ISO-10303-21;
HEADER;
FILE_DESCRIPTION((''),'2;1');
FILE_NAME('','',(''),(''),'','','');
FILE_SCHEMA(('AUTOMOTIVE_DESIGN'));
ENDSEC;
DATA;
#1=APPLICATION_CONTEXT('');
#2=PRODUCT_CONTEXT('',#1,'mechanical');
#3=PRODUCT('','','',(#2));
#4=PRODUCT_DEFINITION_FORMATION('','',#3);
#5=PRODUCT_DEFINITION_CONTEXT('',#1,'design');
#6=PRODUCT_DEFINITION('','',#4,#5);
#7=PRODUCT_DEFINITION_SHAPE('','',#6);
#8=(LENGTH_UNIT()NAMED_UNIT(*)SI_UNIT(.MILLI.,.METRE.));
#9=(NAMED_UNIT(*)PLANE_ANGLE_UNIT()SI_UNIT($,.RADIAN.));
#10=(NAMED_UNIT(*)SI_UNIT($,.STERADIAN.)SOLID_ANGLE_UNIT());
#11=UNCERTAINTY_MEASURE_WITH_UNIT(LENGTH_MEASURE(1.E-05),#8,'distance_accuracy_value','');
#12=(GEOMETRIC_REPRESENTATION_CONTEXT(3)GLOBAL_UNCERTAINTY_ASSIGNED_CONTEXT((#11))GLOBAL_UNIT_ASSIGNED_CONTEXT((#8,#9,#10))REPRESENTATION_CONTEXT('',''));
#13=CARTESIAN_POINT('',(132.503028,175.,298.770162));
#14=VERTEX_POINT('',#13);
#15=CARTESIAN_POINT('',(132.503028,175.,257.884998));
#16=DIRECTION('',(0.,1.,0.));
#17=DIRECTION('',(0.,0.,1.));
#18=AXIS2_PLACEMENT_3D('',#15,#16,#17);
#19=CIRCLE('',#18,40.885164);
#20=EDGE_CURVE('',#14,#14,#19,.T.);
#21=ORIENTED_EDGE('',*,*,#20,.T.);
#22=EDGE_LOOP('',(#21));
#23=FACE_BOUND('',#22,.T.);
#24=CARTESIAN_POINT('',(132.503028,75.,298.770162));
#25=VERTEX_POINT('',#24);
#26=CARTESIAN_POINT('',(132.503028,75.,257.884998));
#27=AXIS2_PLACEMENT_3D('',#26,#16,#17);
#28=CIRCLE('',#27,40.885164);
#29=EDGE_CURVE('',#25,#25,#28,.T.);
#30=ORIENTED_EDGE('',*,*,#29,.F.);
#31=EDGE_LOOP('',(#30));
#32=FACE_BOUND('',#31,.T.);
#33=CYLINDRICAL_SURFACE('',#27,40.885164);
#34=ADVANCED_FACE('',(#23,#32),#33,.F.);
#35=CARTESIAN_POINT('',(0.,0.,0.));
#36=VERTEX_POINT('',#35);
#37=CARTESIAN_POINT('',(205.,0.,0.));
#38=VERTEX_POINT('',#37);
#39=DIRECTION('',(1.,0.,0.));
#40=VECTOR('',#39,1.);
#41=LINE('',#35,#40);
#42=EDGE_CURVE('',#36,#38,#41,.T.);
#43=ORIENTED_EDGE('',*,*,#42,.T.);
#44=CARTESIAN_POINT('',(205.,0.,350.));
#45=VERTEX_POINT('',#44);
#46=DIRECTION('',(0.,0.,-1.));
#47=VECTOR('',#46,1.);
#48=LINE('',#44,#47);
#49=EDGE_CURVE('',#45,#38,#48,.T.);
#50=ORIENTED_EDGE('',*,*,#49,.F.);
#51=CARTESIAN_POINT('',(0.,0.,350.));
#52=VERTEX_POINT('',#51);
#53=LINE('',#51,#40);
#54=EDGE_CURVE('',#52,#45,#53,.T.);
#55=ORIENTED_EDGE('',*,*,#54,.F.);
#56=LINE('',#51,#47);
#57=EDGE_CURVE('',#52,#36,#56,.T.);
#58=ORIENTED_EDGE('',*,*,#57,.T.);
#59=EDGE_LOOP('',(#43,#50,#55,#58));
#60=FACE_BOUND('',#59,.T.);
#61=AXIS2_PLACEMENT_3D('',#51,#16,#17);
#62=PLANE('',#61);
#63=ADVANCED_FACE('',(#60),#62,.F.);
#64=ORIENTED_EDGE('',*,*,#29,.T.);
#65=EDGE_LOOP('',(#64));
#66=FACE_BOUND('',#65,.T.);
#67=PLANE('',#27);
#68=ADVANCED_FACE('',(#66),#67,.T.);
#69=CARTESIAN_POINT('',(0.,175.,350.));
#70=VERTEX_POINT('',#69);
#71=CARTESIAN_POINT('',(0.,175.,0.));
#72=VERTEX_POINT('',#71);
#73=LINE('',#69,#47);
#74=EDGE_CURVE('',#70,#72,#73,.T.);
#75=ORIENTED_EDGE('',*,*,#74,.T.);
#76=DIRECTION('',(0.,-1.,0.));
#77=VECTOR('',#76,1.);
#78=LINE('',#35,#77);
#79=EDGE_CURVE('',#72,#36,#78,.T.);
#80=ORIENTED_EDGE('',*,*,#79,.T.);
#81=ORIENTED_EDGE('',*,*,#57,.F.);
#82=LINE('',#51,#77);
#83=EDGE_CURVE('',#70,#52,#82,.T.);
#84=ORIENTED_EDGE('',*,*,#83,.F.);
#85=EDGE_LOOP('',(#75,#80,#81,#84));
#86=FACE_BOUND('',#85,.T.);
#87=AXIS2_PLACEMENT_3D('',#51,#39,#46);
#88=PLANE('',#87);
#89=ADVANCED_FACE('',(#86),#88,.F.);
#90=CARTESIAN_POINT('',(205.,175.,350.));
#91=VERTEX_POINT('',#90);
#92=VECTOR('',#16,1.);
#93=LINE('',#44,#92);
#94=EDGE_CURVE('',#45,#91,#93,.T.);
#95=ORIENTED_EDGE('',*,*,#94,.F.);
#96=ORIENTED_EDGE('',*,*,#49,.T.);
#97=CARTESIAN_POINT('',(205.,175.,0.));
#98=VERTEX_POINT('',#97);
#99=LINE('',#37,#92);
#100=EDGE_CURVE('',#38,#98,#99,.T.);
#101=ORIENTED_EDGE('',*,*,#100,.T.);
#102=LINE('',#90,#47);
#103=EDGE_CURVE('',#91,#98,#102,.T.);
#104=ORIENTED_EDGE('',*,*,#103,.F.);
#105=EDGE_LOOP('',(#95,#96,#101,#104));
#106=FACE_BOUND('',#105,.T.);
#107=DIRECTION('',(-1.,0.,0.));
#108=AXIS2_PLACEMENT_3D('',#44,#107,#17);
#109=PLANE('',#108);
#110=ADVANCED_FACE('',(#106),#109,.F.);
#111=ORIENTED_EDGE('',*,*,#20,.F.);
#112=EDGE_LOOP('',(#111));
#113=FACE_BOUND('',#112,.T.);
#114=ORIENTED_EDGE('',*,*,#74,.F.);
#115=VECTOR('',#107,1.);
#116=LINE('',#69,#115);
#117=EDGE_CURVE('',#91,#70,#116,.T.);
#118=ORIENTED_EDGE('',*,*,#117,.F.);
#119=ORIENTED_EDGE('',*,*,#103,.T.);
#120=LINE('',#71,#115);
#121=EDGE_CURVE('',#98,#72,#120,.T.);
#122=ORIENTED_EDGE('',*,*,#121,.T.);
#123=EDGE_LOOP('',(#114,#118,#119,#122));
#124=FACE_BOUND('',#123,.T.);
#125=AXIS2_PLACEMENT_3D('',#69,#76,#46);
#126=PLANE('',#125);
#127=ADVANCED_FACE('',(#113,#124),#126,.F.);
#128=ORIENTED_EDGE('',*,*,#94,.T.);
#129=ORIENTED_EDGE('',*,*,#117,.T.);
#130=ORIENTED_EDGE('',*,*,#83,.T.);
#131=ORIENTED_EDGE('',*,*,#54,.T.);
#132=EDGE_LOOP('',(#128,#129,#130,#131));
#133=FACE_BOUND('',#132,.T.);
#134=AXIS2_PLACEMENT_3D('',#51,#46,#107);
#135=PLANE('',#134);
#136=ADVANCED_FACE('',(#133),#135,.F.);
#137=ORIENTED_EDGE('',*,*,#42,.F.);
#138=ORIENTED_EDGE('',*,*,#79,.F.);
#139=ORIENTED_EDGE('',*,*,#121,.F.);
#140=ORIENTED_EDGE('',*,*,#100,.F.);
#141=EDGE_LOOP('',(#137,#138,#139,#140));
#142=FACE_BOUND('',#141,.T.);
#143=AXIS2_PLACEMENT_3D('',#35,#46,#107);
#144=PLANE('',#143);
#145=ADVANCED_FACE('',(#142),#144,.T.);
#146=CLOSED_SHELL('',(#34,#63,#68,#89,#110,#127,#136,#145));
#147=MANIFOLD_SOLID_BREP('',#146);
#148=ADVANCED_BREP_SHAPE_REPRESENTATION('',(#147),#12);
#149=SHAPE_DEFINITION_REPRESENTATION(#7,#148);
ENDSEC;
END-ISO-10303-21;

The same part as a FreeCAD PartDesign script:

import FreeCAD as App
import Part
import Sketcher
from FreeCAD import Vector

doc = App.newDocument("Part")
body = doc.addObject("PartDesign::Body", "Body")

# Sketch on XY plane
sketch1 = doc.addObject("Sketcher::SketchObject", "Sketch")
body.addObject(sketch1)
sketch1.AttachmentSupport = (doc.XY_Plane, [""])
sketch1.MapMode = "FlatFace"
sketch1.addGeometry(Part.LineSegment(Vector(0, 175, 0), Vector(0, 0, 0)), False)
sketch1.addGeometry(Part.LineSegment(Vector(0, 0, 0), Vector(205, 0, 0)), False)
sketch1.addGeometry(Part.LineSegment(Vector(205, 0, 0), Vector(205, 175, 0)), False)
sketch1.addGeometry(Part.LineSegment(Vector(205, 175, 0), Vector(0, 175, 0)), False)
sketch1.addConstraint(Sketcher.Constraint("Coincident", 0, 2, 1, 1))
sketch1.addConstraint(Sketcher.Constraint("Coincident", 1, 2, 2, 1))
sketch1.addConstraint(Sketcher.Constraint("Coincident", 2, 2, 3, 1))
sketch1.addConstraint(Sketcher.Constraint("Coincident", 3, 2, 0, 1))
sketch1.addConstraint(Sketcher.Constraint("Vertical", 0))
sketch1.addConstraint(Sketcher.Constraint("Horizontal", 1))
sketch1.addConstraint(Sketcher.Constraint("Vertical", 2))
sketch1.addConstraint(Sketcher.Constraint("Horizontal", 3))
sketch1.addConstraint(Sketcher.Constraint("Coincident", 0, 2, -1, 1))
sketch1.addConstraint(Sketcher.Constraint("DistanceX", 1, 1, 1, 2, 205.0))
sketch1.addConstraint(Sketcher.Constraint("DistanceY", 0, 2, 0, 1, 175.0))
pad1 = doc.addObject("PartDesign::Pad", "Pad")
body.addObject(pad1)
pad1.Profile = sketch1
pad1.Length = 350

# Sketch on XZ plane
sketch2 = doc.addObject("Sketcher::SketchObject", "Sketch001")
body.addObject(sketch2)
sketch2.AttachmentSupport = (doc.XZ_Plane, [""])
sketch2.MapMode = "FlatFace"
sketch2.AttachmentOffset = App.Placement(Vector(0, 0, -175), App.Rotation())
sketch2.addGeometry(Part.Circle(Vector(132.503028, 257.884998, 0), Vector(0, 0, 1), 40.885164), False)
sketch2.addConstraint(Sketcher.Constraint("Diameter", 0, 81.770328))
sketch2.addConstraint(Sketcher.Constraint("DistanceY", -1, 1, 0, 3, 257.884998))
sketch2.addConstraint(Sketcher.Constraint("DistanceX", -1, 1, 0, 3, 132.503028))
pocket1 = doc.addObject("PartDesign::Pocket", "Pocket")
body.addObject(pocket1)
pocket1.Profile = sketch2
pocket1.Length = 100
pocket1.Reversed = True

doc.recompute()
